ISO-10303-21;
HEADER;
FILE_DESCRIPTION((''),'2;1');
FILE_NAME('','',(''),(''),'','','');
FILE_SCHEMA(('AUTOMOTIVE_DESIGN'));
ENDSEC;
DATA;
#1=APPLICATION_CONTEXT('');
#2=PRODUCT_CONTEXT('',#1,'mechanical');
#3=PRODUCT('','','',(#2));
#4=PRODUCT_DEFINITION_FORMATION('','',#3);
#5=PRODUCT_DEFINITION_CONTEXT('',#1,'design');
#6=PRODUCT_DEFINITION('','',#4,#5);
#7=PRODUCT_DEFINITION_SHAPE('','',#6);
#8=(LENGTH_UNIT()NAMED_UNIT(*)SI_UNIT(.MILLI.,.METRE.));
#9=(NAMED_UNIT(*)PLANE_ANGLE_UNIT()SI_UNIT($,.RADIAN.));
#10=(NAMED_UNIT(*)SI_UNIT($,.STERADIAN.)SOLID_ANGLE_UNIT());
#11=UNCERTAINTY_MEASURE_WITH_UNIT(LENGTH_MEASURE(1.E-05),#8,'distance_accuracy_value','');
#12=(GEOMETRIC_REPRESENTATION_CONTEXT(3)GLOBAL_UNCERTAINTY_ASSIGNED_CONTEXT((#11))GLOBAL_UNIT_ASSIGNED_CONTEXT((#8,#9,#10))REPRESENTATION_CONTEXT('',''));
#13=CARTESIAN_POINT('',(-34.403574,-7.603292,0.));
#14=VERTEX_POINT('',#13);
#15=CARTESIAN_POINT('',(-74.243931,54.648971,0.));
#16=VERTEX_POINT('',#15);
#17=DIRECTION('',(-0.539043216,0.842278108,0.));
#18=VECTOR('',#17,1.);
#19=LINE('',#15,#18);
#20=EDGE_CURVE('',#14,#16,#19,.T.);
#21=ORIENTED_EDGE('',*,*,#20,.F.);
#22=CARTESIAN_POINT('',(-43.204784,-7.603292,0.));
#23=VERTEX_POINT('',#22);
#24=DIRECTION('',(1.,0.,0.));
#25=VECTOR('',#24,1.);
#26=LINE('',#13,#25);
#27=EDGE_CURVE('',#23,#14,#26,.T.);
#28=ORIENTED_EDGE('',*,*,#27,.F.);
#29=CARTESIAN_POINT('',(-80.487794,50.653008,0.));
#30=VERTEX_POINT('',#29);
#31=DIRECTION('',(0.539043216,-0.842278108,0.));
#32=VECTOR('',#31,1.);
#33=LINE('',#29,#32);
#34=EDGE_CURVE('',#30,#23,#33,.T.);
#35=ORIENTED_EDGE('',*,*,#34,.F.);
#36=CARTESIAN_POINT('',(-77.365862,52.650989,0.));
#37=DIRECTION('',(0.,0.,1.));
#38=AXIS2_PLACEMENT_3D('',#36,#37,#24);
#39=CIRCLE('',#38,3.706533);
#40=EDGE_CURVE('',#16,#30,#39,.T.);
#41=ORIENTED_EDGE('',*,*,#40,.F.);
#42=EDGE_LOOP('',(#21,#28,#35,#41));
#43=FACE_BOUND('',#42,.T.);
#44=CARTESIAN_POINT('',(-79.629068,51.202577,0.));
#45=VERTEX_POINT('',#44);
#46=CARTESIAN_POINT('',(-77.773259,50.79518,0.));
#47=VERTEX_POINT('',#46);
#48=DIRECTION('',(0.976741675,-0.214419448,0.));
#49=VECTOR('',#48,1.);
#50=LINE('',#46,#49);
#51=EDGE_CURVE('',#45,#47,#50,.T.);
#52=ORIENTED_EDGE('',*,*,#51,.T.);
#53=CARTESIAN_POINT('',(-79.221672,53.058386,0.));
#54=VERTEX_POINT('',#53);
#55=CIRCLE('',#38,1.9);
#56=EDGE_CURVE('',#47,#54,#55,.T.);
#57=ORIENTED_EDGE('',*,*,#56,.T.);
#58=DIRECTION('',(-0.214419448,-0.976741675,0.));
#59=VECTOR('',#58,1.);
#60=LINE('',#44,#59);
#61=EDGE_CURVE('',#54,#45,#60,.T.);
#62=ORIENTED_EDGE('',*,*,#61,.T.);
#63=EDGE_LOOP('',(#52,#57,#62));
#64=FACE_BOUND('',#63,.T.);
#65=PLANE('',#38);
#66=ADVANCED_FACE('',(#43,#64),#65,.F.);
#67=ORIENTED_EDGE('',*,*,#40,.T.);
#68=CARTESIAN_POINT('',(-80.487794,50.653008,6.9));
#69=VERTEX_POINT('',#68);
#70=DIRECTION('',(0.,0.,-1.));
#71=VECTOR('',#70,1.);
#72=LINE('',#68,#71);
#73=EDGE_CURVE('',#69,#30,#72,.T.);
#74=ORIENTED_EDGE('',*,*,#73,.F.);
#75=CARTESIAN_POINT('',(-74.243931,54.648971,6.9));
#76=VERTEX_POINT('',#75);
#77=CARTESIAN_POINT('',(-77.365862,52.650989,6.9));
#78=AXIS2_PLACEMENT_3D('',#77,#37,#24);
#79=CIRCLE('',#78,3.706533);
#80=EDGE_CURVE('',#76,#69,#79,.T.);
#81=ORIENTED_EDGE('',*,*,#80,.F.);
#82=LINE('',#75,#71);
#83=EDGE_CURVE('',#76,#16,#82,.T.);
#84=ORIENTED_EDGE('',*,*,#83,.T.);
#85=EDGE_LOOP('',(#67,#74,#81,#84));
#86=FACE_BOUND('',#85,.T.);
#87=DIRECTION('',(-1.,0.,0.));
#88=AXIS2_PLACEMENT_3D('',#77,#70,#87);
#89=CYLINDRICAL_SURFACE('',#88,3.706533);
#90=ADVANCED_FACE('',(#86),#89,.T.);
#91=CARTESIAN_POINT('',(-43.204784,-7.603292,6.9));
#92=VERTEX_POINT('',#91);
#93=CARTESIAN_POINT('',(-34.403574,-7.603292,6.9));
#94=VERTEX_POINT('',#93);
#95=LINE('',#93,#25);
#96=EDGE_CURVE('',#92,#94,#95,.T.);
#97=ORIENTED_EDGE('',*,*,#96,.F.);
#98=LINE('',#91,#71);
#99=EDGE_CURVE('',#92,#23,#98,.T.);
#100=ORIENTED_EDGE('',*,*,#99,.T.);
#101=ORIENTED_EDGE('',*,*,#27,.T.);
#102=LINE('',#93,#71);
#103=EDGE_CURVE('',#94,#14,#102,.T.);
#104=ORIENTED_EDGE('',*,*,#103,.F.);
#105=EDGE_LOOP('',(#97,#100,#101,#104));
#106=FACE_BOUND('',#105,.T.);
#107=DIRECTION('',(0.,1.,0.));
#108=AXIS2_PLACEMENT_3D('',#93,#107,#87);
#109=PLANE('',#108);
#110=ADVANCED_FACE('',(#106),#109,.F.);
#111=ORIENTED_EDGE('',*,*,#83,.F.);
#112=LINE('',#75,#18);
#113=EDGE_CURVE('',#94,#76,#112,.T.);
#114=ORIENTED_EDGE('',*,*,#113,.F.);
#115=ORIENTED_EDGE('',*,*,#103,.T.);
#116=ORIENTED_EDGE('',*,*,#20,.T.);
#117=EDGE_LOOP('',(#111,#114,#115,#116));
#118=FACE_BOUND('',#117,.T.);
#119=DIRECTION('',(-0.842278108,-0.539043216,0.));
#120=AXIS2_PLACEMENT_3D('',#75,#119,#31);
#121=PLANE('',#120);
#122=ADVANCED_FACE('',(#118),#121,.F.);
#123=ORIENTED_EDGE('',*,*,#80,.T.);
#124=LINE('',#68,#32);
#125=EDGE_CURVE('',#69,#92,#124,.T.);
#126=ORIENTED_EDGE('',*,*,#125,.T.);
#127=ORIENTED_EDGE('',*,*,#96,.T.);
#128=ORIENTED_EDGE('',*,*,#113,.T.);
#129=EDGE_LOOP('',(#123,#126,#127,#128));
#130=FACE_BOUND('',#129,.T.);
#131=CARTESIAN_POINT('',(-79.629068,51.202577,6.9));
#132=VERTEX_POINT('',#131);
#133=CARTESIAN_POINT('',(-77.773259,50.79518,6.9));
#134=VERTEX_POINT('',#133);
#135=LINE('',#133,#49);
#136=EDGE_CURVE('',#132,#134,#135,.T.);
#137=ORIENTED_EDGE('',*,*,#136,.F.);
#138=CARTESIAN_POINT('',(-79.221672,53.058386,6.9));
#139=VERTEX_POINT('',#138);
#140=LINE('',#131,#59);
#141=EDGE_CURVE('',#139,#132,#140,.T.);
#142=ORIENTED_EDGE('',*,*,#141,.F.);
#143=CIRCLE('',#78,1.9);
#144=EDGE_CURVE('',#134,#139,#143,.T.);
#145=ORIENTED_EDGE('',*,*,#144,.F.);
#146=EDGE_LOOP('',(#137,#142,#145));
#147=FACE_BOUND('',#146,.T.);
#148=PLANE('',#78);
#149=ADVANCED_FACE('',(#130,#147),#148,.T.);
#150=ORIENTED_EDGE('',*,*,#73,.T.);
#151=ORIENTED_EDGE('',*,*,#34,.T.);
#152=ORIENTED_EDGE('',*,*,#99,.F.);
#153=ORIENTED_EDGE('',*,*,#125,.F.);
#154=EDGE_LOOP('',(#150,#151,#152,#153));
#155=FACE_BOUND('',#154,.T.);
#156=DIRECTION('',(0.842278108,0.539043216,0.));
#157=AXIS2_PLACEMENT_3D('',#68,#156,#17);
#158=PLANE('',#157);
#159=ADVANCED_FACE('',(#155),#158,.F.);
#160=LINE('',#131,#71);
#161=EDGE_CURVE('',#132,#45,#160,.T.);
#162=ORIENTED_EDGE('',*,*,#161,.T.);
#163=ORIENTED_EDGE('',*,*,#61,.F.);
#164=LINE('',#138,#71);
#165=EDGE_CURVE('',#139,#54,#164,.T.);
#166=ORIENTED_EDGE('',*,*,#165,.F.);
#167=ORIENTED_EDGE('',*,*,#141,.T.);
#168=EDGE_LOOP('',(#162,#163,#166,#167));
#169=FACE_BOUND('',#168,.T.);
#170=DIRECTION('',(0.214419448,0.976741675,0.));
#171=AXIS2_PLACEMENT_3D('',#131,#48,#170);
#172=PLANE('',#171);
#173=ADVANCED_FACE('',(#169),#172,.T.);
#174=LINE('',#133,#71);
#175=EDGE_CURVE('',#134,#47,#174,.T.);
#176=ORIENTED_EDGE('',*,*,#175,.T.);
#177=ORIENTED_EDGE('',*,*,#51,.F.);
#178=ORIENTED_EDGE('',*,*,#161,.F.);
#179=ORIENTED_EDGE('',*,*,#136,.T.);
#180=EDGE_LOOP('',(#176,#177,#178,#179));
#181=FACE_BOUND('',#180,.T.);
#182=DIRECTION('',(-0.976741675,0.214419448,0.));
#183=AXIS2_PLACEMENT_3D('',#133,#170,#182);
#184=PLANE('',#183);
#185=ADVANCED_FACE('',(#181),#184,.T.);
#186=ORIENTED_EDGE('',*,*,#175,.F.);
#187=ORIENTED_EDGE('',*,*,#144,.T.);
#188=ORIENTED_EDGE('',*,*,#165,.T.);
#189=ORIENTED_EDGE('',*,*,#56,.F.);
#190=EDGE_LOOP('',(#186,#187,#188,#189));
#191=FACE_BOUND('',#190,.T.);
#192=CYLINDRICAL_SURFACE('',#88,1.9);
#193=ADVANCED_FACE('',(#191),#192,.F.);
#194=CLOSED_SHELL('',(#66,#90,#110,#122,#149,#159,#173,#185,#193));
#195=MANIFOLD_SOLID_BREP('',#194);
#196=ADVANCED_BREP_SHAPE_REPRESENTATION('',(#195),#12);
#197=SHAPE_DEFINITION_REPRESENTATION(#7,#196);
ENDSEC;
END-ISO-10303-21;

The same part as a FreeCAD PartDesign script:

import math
import FreeCAD as App
import Part
import Sketcher
Q = App.Units.Quantity

doc = App.newDocument("Part")
body = doc.addObject("PartDesign::Body", "Body")

# Sketch on XY plane
sketch1 = body.newObject("Sketcher::SketchObject", "Sketch")
sketch1.AttachmentSupport = (doc.getObject("XY_Plane"), [""])
sketch1.MapMode = "FlatFace"
sketch1.addGeometry([
    Part.LineSegment(App.Vector(-34.403574, -7.603292, 0), App.Vector(-74.243931, 54.648971, 0)),  # 0
    Part.ArcOfCircle(Part.Circle(App.Vector(-77.365862, 52.650989, 0), App.Vector(0, 0, 1), 3.706533), math.radians(32.61853), math.radians(212.61853)),  # 1
    Part.LineSegment(App.Vector(-80.487794, 50.653008, 0), App.Vector(-43.204784, -7.603292, 0)),  # 2
    Part.LineSegment(App.Vector(-43.204784, -7.603292, 0), App.Vector(-34.403574, -7.603292, 0)),  # 3
    Part.LineSegment(App.Vector(-79.629068, 51.202577, 0), App.Vector(-79.221672, 53.058386, 0)),  # 4
    Part.ArcOfCircle(Part.Circle(App.Vector(-77.365862, 52.650989, 0), App.Vector(0, 0, 1), 1.9), math.radians(-102.38147), math.radians(167.61853)),  # 5
    Part.LineSegment(App.Vector(-77.773259, 50.79518, 0), App.Vector(-79.629068, 51.202577, 0)),  # 6
], False)
sketch1.addConstraint([
    Sketcher.Constraint("Tangent", 0, 2, 1, 1),
    Sketcher.Constraint("Tangent", 1, 2, 2, 1),
    Sketcher.Constraint("Coincident", 2, 2, 3, 1),
    Sketcher.Constraint("Coincident", 3, 2, 0, 1),
    Sketcher.Constraint("Tangent", 4, 2, 5, 2),
    Sketcher.Constraint("Tangent", 5, 1, 6, 1),
    Sketcher.Constraint("Coincident", 6, 2, 4, 1),
    Sketcher.Constraint("Horizontal", 3),
    Sketcher.Constraint("Coincident", 5, 3, 1, 3),
    Sketcher.Constraint("Parallel", 0, 2),
    Sketcher.Constraint("Perpendicular", 4, 6),
    Sketcher.Constraint("Radius", 5, Q("1.9 mm")),
    Sketcher.Constraint("Radius", 1, Q("3.706533 mm")),
    Sketcher.Constraint("DistanceX", 3, 1, 3, 2, Q("8.80121 mm")),
    Sketcher.Constraint("DistanceY", 2, 2, 1, 2, Q("58.256299 mm")),
    Sketcher.Constraint("DistanceY", -1, 1, 1, 3, Q("52.650989 mm")),
    Sketcher.Constraint("DistanceX", 0, 2, -1, 1, Q("74.243931 mm")),
    Sketcher.Constraint("DistanceX", 4, 2, -1, 1, Q("79.221672 mm")),
])
pad1 = body.newObject("PartDesign::Pad", "Pad")
pad1.Profile = sketch1
pad1.Length = 6.9

doc.recompute()
